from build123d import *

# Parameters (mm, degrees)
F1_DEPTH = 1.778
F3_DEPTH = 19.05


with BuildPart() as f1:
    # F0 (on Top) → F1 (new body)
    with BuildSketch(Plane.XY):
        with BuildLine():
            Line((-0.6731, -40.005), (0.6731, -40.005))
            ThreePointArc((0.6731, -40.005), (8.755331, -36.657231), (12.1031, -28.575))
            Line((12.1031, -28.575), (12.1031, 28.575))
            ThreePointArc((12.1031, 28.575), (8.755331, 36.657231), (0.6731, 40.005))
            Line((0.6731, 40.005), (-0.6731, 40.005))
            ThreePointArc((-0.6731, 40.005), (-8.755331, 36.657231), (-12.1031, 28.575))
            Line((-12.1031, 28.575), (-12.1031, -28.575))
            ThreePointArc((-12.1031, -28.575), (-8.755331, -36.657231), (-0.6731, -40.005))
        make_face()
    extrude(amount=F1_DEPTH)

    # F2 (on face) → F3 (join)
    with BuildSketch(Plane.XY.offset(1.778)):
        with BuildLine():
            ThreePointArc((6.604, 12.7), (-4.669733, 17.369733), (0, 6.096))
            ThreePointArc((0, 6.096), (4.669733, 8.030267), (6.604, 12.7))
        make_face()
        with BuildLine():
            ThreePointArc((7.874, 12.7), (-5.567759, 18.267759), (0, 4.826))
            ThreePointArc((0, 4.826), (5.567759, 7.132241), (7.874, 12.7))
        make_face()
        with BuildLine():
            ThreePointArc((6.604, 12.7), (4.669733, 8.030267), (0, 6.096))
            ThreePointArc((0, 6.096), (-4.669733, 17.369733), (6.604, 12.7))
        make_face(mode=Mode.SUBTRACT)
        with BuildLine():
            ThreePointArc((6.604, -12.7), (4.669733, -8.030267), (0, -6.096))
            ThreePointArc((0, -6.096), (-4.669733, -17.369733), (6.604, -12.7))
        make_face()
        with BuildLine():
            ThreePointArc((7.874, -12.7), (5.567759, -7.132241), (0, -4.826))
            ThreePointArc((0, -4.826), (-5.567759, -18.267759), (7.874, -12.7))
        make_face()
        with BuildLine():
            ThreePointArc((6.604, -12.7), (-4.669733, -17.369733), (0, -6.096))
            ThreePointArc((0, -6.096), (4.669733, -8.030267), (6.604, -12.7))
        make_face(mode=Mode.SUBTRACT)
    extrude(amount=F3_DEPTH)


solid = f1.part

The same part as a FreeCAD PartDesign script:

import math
import FreeCAD as App
import Part
import Sketcher
Q = App.Units.Quantity

doc = App.newDocument("Part")
body = doc.addObject("PartDesign::Body", "Body")

# Sketch on XY plane
sketch1 = body.newObject("Sketcher::SketchObject", "Sketch")
sketch1.AttachmentSupport = (doc.getObject("XY_Plane"), [""])
sketch1.MapMode = "FlatFace"
sketch1.addGeometry([
    Part.LineSegment(App.Vector(-0.7, -40, 0), App.Vector(0.7, -40, 0)),  # 0
    Part.ArcOfCircle(Part.Circle(App.Vector(0.7, -28.6, 0), App.Vector(0, 0, 1), 11.4), math.radians(-90), math.radians(0)),  # 1
    Part.LineSegment(App.Vector(12.1, -28.6, 0), App.Vector(12.1, 28.6, 0)),  # 2
    Part.ArcOfCircle(Part.Circle(App.Vector(0.7, 28.6, 0), App.Vector(0, 0, 1), 11.4), math.radians(0), math.radians(90)),  # 3
    Part.LineSegment(App.Vector(0.7, 40, 0), App.Vector(-0.7, 40, 0)),  # 4
    Part.ArcOfCircle(Part.Circle(App.Vector(-0.7, 28.6, 0), App.Vector(0, 0, 1), 11.4), math.radians(90), math.radians(180)),  # 5
    Part.LineSegment(App.Vector(-12.1, 28.6, 0), App.Vector(-12.1, -28.6, 0)),  # 6
    Part.ArcOfCircle(Part.Circle(App.Vector(-0.7, -28.6, 0), App.Vector(0, 0, 1), 11.4), math.radians(180), math.radians(270)),  # 7
], False)
sketch1.addConstraint([
    Sketcher.Constraint("Tangent", 0, 2, 1, 1),
    Sketcher.Constraint("Tangent", 1, 2, 2, 1),
    Sketcher.Constraint("Tangent", 2, 2, 3, 1),
    Sketcher.Constraint("Tangent", 3, 2, 4, 1),
    Sketcher.Constraint("Tangent", 4, 2, 5, 1),
    Sketcher.Constraint("Tangent", 5, 2, 6, 1),
    Sketcher.Constraint("Tangent", 6, 2, 7, 1),
    Sketcher.Constraint("Tangent", 7, 2, 0, 1),
    Sketcher.Constraint("Horizontal", 0),
    Sketcher.Constraint("Vertical", 2),
    Sketcher.Constraint("Horizontal", 4),
    Sketcher.Constraint("Vertical", 6),
    Sketcher.Constraint("Equal", 1, 3),
    Sketcher.Constraint("Equal", 3, 5),
    Sketcher.Constraint("Equal", 5, 7),
    Sketcher.Constraint("Symmetric", 1, 3, 5, 3, -1, 1),
    Sketcher.Constraint("Radius", 1, Q("0.4499999 in")),
    Sketcher.Constraint("DistanceY", 2, 1, 2, 2, Q("2.25 in")),
    Sketcher.Constraint("DistanceX", 0, 1, 0, 2, Q("0.053 in")),
])
pad1 = body.newObject("PartDesign::Pad", "Pad")
pad1.Profile = sketch1
pad1.Length = Q("0.07 in")

# Sketch on XY plane
sketch2 = body.newObject("Sketcher::SketchObject", "Sketch001")
sketch2.AttachmentSupport = (doc.getObject("XY_Plane"), [""])
sketch2.MapMode = "FlatFace"
sketch2.AttachmentOffset = App.Placement(App.Vector(0, 0, 0.07 * 25.4), App.Rotation())
sketch2.addGeometry([
    Part.ArcOfCircle(Part.Circle(App.Vector(0, 13, 0), App.Vector(0, 0, 1), 8), math.radians(0), math.radians(270)),  # 0
    Part.ArcOfCircle(Part.Circle(App.Vector(0, 13, 0), App.Vector(0, 0, 1), 8), math.radians(-90), math.radians(0)),  # 1
    Part.ArcOfCircle(Part.Circle(App.Vector(0, 13, 0), App.Vector(0, 0, 1), 7), math.radians(0), math.radians(270)),  # 2
    Part.ArcOfCircle(Part.Circle(App.Vector(0, 13, 0), App.Vector(0, 0, 1), 7), math.radians(-90), math.radians(0)),  # 3
    Part.ArcOfCircle(Part.Circle(App.Vector(0, -13, 0), App.Vector(0, 0, 1), 8), math.radians(0), math.radians(90)),  # 4
    Part.ArcOfCircle(Part.Circle(App.Vector(0, -13, 0), App.Vector(0, 0, 1), 8), math.radians(90), math.radians(360)),  # 5
    Part.ArcOfCircle(Part.Circle(App.Vector(0, -13, 0), App.Vector(0, 0, 1), 7), math.radians(0), math.radians(90)),  # 6
    Part.ArcOfCircle(Part.Circle(App.Vector(0, -13, 0), App.Vector(0, 0, 1), 7), math.radians(90), math.radians(360)),  # 7
], False)
sketch2.addConstraint([
    Sketcher.Constraint("Tangent", 0, 1, 1, 2),
    Sketcher.Constraint("Coincident", 1, 1, 0, 2),
    Sketcher.Constraint("Tangent", 2, 1, 3, 2),
    Sketcher.Constraint("Coincident", 3, 1, 2, 2),
    Sketcher.Constraint("Tangent", 4, 1, 5, 2),
    Sketcher.Constraint("Coincident", 5, 1, 4, 2),
    Sketcher.Constraint("Tangent", 6, 1, 7, 2),
    Sketcher.Constraint("Coincident", 7, 1, 6, 2),
    Sketcher.Constraint("Coincident", 2, 3, 0, 3),
    Sketcher.Constraint("Coincident", 6, 3, 4, 3),
    Sketcher.Constraint("Equal", 1, 4),
    Sketcher.Constraint("Equal", 3, 6),
    Sketcher.Constraint("Symmetric", 0, 3, 4, 3, -1, 1),
    Sketcher.Constraint("Symmetric", 0, 1, 4, 1, -1),
    Sketcher.Constraint("PointOnObject", 1, 1, -2),
    Sketcher.Constraint("PointOnObject", 3, 1, -2),
    Sketcher.Constraint("PointOnObject", 5, 1, -2),
    Sketcher.Constraint("PointOnObject", 7, 1, -2),
    Sketcher.Constraint("Horizontal", 3, 3, 0, 1),
    Sketcher.Constraint("Horizontal", 0, 1, 2, 1),
    Sketcher.Constraint("Horizontal", 4, 1, 6, 1),
    Sketcher.Constraint("Radius", 0, Q("0.31 in")),
    Sketcher.Constraint("Radius", 2, Q("0.26 in")),
    Sketcher.Constraint("DistanceY", 4, 3, 1, 3, Q("0.9999999 in")),
])
pad2 = body.newObject("PartDesign::Pad", "Pad001")
pad2.Profile = sketch2
pad2.Length = Q("0.75 in")

doc.recompute()
